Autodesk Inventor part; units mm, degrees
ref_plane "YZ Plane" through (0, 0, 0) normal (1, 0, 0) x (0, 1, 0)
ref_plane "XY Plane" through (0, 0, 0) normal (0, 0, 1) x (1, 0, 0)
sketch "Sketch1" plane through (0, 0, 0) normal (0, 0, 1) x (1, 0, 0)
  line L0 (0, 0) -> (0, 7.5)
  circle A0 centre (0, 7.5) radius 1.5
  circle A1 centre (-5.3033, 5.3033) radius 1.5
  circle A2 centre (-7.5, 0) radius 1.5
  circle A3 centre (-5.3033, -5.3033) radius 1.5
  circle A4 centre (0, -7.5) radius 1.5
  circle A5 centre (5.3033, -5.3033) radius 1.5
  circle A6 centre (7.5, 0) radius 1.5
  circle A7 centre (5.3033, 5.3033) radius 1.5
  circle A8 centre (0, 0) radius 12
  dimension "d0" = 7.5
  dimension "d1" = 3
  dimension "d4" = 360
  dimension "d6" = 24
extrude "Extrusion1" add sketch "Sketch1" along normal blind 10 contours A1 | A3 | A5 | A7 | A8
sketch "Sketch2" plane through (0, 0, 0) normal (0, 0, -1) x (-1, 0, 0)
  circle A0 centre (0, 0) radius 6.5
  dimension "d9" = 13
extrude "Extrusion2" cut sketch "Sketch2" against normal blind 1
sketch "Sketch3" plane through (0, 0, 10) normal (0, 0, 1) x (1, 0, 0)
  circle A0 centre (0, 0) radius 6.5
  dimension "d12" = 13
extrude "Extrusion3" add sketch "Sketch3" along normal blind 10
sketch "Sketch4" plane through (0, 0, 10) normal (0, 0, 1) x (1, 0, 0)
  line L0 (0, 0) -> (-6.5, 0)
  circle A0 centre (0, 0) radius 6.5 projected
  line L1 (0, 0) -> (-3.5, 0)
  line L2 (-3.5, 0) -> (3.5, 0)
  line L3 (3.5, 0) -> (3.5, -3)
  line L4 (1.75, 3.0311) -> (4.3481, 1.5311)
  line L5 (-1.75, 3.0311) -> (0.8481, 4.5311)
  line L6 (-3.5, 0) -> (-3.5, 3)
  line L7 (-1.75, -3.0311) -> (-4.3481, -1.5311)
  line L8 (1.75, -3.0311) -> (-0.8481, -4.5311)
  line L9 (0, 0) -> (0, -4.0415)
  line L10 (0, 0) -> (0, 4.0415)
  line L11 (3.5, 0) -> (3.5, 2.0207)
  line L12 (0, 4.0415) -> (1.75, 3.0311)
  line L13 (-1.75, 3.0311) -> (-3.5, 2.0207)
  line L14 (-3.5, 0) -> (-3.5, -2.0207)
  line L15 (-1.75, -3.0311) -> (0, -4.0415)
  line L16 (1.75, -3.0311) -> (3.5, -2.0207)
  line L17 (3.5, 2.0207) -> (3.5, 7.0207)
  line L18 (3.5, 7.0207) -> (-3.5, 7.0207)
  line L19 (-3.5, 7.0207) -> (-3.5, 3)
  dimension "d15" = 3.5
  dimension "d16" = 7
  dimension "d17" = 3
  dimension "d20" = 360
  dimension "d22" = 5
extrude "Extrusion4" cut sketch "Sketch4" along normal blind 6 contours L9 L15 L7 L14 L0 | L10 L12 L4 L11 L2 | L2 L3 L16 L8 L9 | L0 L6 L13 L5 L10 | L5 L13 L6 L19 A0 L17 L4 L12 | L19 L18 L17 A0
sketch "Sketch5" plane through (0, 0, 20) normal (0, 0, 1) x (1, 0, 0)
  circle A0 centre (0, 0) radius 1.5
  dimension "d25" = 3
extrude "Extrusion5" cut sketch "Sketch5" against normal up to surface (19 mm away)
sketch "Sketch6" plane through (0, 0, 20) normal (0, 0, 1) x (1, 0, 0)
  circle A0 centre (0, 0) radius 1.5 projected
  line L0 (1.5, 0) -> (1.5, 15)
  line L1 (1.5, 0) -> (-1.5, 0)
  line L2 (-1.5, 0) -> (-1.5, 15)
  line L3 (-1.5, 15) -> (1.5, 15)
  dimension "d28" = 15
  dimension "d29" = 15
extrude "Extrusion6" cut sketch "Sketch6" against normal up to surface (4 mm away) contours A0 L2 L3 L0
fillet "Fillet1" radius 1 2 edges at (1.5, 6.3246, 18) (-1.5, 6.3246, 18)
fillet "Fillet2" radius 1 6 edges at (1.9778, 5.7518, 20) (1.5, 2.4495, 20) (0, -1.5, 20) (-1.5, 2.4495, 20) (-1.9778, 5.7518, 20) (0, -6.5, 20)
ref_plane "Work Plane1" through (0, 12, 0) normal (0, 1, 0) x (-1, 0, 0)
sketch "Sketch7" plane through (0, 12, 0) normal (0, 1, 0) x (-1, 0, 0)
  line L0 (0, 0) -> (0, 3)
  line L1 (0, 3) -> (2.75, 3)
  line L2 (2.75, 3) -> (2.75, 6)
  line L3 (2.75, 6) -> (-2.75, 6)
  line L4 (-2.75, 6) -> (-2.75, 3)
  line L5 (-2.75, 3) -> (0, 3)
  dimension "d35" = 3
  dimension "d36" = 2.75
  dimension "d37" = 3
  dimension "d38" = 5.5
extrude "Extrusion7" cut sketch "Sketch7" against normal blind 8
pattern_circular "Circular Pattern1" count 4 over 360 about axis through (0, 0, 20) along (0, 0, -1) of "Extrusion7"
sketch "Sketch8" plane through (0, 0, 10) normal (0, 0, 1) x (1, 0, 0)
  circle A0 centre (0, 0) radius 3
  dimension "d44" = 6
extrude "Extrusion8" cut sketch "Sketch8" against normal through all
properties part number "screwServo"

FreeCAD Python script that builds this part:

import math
import FreeCAD as App
import Part
import Sketcher
from FreeCAD import Vector
Q = App.Units.Quantity


def edges_at(feature, points):
    """Names of the edges that pass closest to the given points."""
    edges = feature.Shape.Edges
    near = lambda p: min(range(len(edges)), key=lambda i: edges[i].distToShape(Part.Vertex(*p))[0])
    return sorted({f"Edge{near(p) + 1}" for p in points})


def add_polygon(sketch, points):
    """Adds a closed chain of lines whose ends are joined by coincident constraints."""
    first, n = sketch.GeometryCount, len(points)
    for a, b in zip(points, points[1:] + points[:1]):
        sketch.addGeometry(Part.LineSegment(App.Vector(*a, 0), App.Vector(*b, 0)), False)
    for i in range(n):
        sketch.addConstraint(Sketcher.Constraint("Coincident", first + i, 2, first + (i + 1) % n, 1))

doc = App.newDocument("Part")
body = doc.addObject("PartDesign::Body", "Body")

sketch1 = body.newObject("Sketcher::SketchObject", "Sketch")
sketch1.AttachmentSupport = (doc.getObject("XY_Plane"), [""])
sketch1.MapMode = "FlatFace"
sketch1.addGeometry([
    Part.Circle(Vector(0, 0, 0), Vector(0, 0, 1), 12),
    Part.Circle(Vector(0, -7.5, 0), Vector(0, 0, 1), 1.5),
    Part.Circle(Vector(-7.5, 0, 0), Vector(0, 0, 1), 1.5),
    Part.Circle(Vector(0, 7.5, 0), Vector(0, 0, 1), 1.5),
    Part.Circle(Vector(7.5, 0, 0), Vector(0, 0, 1), 1.5),
], False)
sketch1.addConstraint([
    Sketcher.Constraint("Coincident", 0, 3, -1, 1),
    Sketcher.Constraint("Equal", 1, 2),
    Sketcher.Constraint("Equal", 2, 3),
    Sketcher.Constraint("Equal", 3, 4),
    Sketcher.Constraint("Symmetric", 1, 3, 3, 3, -1, 1),
    Sketcher.Constraint("Symmetric", 2, 3, 4, 3, -1, 1),
    Sketcher.Constraint("PointOnObject", 1, 3, -2),
    Sketcher.Constraint("PointOnObject", 2, 3, -1),
    Sketcher.Constraint("Diameter", 0, Q("24 mm")),
    Sketcher.Constraint("Diameter", 1, Q("3 mm")),
    Sketcher.Constraint("DistanceY", 1, 3, -1, 1, Q("7.5 mm")),
    Sketcher.Constraint("DistanceX", 2, 3, -1, 1, Q("7.5 mm")),
])
pad1 = body.newObject("PartDesign::Pad", "Pad")
pad1.Profile = sketch1
pad1.Length = 10

sketch2 = body.newObject("Sketcher::SketchObject", "Sketch001")
sketch2.AttachmentSupport = (doc.getObject("XY_Plane"), [""])
sketch2.MapMode = "FlatFace"
sketch2.addGeometry(Part.Circle(Vector(0, 0, 0), Vector(0, 0, 1), 6), False)
sketch2.addConstraint([
    Sketcher.Constraint("Coincident", 0, 3, -1, 1),
    Sketcher.Constraint("Diameter", 0, Q("13 mm")),
])
pocket1 = body.newObject("PartDesign::Pocket", "Pocket")
pocket1.Profile = sketch2
pocket1.Length = 1
pocket1.Reversed = True

sketch3 = body.newObject("Sketcher::SketchObject", "Sketch002")
sketch3.AttachmentSupport = (doc.getObject("XY_Plane"), [""])
sketch3.MapMode = "FlatFace"
sketch3.AttachmentOffset = App.Placement(Vector(0, 0, 10), App.Rotation())
sketch3.addGeometry(Part.Circle(Vector(0, 0, 0), Vector(0, 0, 1), 6), False)
sketch3.addConstraint([
    Sketcher.Constraint("Coincident", 0, 3, -1, 1),
    Sketcher.Constraint("Diameter", 0, Q("13 mm")),
])
pad2 = body.newObject("PartDesign::Pad", "Pad001")
pad2.Profile = sketch3
pad2.Length = 10

sketch4 = body.newObject("Sketcher::SketchObject", "Sketch003")
sketch4.AttachmentSupport = (doc.getObject("XY_Plane"), [""])
sketch4.MapMode = "FlatFace"
sketch4.AttachmentOffset = App.Placement(Vector(0, 0, 10), App.Rotation())
add_polygon(sketch4, [(-1.8, -3), (0, -4), (1.8, -3), (3.5, -2), (3.5, 7), (-3.5, 7), (-3.5, -2)])
sketch4.addConstraint([
    Sketcher.Constraint("Vertical", 3),
    Sketcher.Constraint("Horizontal", 4),
    Sketcher.Constraint("Vertical", 5),
    Sketcher.Constraint("Symmetric", 2, 2, 5, 2, -2),
    Sketcher.Constraint("Symmetric", 1, 2, 6, 2, -2),
    Sketcher.Constraint("PointOnObject", 0, 2, -2),
    Sketcher.Constraint("Parallel", 1, 2),
    Sketcher.Constraint("Equal", 1, 2),
    Sketcher.Constraint("DistanceX", 4, 2, 4, 1, Q("7 mm")),
    Sketcher.Constraint("Angle", 0, Q("-30.001 deg")),
    Sketcher.Constraint("DistanceY", 3, 1, 3, 2, Q("9.0414 mm")),
    Sketcher.Constraint("DistanceY", 1, 2, -1, 1, Q("3.031 mm")),
])
pocket2 = body.newObject("PartDesign::Pocket", "Pocket001")
pocket2.Profile = sketch4
pocket2.Length = 6
pocket2.Reversed = True

sketch5 = body.newObject("Sketcher::SketchObject", "Sketch004")
sketch5.AttachmentSupport = (doc.getObject("XY_Plane"), [""])
sketch5.MapMode = "FlatFace"
sketch5.AttachmentOffset = App.Placement(Vector(0, 0, 20), App.Rotation())
sketch5.addGeometry(Part.Circle(Vector(0, 0, 0), Vector(0, 0, 1), 1.5), False)
sketch5.addConstraint([
    Sketcher.Constraint("Coincident", 0, 3, -1, 1),
    Sketcher.Constraint("Diameter", 0, Q("3 mm")),
])
pocket3 = body.newObject("PartDesign::Pocket", "Pocket002")
pocket3.Profile = sketch5
pocket3.Length = 19

sketch6 = body.newObject("Sketcher::SketchObject", "Sketch005")
sketch6.AttachmentSupport = (doc.getObject("XY_Plane"), [""])
sketch6.MapMode = "FlatFace"
sketch6.AttachmentOffset = App.Placement(Vector(0, 0, 20), App.Rotation())
sketch6.addGeometry([
    Part.ArcOfCircle(Part.Circle(Vector(0, 0, 0), Vector(0, 0, 1), 1.5), math.radians(0), math.radians(180)),
    Part.LineSegment(Vector(1.5, 0, 0), Vector(1.5, 15, 0)),
    Part.LineSegment(Vector(1.5, 15, 0), Vector(-1.5, 15, 0)),
    Part.LineSegment(Vector(-1.5, 15, 0), Vector(-1.5, 0, 0)),
], False)
sketch6.addConstraint([
    Sketcher.Constraint("Tangent", 0, 1, 1, 1),
    Sketcher.Constraint("Coincident", 1, 2, 2, 1),
    Sketcher.Constraint("Coincident", 2, 2, 3, 1),
    Sketcher.Constraint("Tangent", 3, 2, 0, 2),
    Sketcher.Constraint("Vertical", 1),
    Sketcher.Constraint("Horizontal", 2),
    Sketcher.Constraint("Vertical", 3),
    Sketcher.Constraint("Coincident", 0, 3, -1, 1),
    Sketcher.Constraint("DistanceY", 1, 1, 1, 2, Q("15 mm")),
    Sketcher.Constraint("Radius", 0, Q("1.5 mm")),
])
pocket4 = body.newObject("PartDesign::Pocket", "Pocket003")
pocket4.Profile = sketch6
pocket4.Length = 4
doc.recompute()

fillet = body.newObject("PartDesign::Fillet", "Fillet")
fillet.Base = (pocket4, edges_at(pocket4, [(1.5, 6.325, 18), (-1.5, 6.325, 18)]))
fillet.Radius = 1
doc.recompute()

fillet2 = body.newObject("PartDesign::Fillet", "Fillet001")
fillet2.Base = (fillet, edges_at(fillet, [
    (1.978, 5.752, 20),
    (1.5, 2.45, 20),
    (0, -1.5, 20),
    (-1.5, 2.45, 20),
    (-1.978, 5.752, 20),
    (0, -6.5, 20),
]))
fillet2.Radius = 1

sketch7 = body.newObject("Sketcher::SketchObject", "Sketch006")
sketch7.AttachmentSupport = (doc.getObject("XZ_Plane"), [""])
sketch7.MapMode = "FlatFace"
sketch7.AttachmentOffset = App.Placement(Vector(0, 0, -12), App.Rotation())
add_polygon(sketch7, [(2.8, 3), (-2.8, 3), (-2.8, 6), (2.8, 6)])
sketch7.addConstraint([
    Sketcher.Constraint("Horizontal", 0),
    Sketcher.Constraint("Vertical", 1),
    Sketcher.Constraint("Horizontal", 2),
    Sketcher.Constraint("Vertical", 3),
    Sketcher.Constraint("DistanceY", 1, 1, 1, 2, Q("3 mm")),
    Sketcher.Constraint("DistanceX", 0, 2, 0, 1, Q("5.5 mm")),
    Sketcher.Constraint("DistanceY", -1, 1, 0, 2, Q("3 mm")),
    Sketcher.Constraint("DistanceX", 0, 2, -1, 1, Q("2.75 mm")),
])
pocket5 = body.newObject("PartDesign::Pocket", "Pocket004")
pocket5.Profile = sketch7
pocket5.Length = 8
pocket5.Reversed = True
doc.recompute()

polarpattern = body.newObject("PartDesign::PolarPattern", "PolarPattern")
polarpattern.Originals = [pocket5]
polarpattern.Axis = (doc.getObject("Z_Axis"), [""])
polarpattern.Angle = 360
polarpattern.Occurrences = 4
body.Tip = polarpattern

sketch8 = body.newObject("Sketcher::SketchObject", "Sketch007")
sketch8.AttachmentSupport = (doc.getObject("XY_Plane"), [""])
sketch8.MapMode = "FlatFace"
sketch8.AttachmentOffset = App.Placement(Vector(0, 0, 10), App.Rotation())
sketch8.addGeometry(Part.Circle(Vector(0, 0, 0), Vector(0, 0, 1), 3), False)
sketch8.addConstraint([
    Sketcher.Constraint("Coincident", 0, 3, -1, 1),
    Sketcher.Constraint("Diameter", 0, Q("6 mm")),
])
pocket6 = body.newObject("PartDesign::Pocket", "Pocket005")
pocket6.Profile = sketch8
pocket6.Type = "ThroughAll"

doc.recompute()
